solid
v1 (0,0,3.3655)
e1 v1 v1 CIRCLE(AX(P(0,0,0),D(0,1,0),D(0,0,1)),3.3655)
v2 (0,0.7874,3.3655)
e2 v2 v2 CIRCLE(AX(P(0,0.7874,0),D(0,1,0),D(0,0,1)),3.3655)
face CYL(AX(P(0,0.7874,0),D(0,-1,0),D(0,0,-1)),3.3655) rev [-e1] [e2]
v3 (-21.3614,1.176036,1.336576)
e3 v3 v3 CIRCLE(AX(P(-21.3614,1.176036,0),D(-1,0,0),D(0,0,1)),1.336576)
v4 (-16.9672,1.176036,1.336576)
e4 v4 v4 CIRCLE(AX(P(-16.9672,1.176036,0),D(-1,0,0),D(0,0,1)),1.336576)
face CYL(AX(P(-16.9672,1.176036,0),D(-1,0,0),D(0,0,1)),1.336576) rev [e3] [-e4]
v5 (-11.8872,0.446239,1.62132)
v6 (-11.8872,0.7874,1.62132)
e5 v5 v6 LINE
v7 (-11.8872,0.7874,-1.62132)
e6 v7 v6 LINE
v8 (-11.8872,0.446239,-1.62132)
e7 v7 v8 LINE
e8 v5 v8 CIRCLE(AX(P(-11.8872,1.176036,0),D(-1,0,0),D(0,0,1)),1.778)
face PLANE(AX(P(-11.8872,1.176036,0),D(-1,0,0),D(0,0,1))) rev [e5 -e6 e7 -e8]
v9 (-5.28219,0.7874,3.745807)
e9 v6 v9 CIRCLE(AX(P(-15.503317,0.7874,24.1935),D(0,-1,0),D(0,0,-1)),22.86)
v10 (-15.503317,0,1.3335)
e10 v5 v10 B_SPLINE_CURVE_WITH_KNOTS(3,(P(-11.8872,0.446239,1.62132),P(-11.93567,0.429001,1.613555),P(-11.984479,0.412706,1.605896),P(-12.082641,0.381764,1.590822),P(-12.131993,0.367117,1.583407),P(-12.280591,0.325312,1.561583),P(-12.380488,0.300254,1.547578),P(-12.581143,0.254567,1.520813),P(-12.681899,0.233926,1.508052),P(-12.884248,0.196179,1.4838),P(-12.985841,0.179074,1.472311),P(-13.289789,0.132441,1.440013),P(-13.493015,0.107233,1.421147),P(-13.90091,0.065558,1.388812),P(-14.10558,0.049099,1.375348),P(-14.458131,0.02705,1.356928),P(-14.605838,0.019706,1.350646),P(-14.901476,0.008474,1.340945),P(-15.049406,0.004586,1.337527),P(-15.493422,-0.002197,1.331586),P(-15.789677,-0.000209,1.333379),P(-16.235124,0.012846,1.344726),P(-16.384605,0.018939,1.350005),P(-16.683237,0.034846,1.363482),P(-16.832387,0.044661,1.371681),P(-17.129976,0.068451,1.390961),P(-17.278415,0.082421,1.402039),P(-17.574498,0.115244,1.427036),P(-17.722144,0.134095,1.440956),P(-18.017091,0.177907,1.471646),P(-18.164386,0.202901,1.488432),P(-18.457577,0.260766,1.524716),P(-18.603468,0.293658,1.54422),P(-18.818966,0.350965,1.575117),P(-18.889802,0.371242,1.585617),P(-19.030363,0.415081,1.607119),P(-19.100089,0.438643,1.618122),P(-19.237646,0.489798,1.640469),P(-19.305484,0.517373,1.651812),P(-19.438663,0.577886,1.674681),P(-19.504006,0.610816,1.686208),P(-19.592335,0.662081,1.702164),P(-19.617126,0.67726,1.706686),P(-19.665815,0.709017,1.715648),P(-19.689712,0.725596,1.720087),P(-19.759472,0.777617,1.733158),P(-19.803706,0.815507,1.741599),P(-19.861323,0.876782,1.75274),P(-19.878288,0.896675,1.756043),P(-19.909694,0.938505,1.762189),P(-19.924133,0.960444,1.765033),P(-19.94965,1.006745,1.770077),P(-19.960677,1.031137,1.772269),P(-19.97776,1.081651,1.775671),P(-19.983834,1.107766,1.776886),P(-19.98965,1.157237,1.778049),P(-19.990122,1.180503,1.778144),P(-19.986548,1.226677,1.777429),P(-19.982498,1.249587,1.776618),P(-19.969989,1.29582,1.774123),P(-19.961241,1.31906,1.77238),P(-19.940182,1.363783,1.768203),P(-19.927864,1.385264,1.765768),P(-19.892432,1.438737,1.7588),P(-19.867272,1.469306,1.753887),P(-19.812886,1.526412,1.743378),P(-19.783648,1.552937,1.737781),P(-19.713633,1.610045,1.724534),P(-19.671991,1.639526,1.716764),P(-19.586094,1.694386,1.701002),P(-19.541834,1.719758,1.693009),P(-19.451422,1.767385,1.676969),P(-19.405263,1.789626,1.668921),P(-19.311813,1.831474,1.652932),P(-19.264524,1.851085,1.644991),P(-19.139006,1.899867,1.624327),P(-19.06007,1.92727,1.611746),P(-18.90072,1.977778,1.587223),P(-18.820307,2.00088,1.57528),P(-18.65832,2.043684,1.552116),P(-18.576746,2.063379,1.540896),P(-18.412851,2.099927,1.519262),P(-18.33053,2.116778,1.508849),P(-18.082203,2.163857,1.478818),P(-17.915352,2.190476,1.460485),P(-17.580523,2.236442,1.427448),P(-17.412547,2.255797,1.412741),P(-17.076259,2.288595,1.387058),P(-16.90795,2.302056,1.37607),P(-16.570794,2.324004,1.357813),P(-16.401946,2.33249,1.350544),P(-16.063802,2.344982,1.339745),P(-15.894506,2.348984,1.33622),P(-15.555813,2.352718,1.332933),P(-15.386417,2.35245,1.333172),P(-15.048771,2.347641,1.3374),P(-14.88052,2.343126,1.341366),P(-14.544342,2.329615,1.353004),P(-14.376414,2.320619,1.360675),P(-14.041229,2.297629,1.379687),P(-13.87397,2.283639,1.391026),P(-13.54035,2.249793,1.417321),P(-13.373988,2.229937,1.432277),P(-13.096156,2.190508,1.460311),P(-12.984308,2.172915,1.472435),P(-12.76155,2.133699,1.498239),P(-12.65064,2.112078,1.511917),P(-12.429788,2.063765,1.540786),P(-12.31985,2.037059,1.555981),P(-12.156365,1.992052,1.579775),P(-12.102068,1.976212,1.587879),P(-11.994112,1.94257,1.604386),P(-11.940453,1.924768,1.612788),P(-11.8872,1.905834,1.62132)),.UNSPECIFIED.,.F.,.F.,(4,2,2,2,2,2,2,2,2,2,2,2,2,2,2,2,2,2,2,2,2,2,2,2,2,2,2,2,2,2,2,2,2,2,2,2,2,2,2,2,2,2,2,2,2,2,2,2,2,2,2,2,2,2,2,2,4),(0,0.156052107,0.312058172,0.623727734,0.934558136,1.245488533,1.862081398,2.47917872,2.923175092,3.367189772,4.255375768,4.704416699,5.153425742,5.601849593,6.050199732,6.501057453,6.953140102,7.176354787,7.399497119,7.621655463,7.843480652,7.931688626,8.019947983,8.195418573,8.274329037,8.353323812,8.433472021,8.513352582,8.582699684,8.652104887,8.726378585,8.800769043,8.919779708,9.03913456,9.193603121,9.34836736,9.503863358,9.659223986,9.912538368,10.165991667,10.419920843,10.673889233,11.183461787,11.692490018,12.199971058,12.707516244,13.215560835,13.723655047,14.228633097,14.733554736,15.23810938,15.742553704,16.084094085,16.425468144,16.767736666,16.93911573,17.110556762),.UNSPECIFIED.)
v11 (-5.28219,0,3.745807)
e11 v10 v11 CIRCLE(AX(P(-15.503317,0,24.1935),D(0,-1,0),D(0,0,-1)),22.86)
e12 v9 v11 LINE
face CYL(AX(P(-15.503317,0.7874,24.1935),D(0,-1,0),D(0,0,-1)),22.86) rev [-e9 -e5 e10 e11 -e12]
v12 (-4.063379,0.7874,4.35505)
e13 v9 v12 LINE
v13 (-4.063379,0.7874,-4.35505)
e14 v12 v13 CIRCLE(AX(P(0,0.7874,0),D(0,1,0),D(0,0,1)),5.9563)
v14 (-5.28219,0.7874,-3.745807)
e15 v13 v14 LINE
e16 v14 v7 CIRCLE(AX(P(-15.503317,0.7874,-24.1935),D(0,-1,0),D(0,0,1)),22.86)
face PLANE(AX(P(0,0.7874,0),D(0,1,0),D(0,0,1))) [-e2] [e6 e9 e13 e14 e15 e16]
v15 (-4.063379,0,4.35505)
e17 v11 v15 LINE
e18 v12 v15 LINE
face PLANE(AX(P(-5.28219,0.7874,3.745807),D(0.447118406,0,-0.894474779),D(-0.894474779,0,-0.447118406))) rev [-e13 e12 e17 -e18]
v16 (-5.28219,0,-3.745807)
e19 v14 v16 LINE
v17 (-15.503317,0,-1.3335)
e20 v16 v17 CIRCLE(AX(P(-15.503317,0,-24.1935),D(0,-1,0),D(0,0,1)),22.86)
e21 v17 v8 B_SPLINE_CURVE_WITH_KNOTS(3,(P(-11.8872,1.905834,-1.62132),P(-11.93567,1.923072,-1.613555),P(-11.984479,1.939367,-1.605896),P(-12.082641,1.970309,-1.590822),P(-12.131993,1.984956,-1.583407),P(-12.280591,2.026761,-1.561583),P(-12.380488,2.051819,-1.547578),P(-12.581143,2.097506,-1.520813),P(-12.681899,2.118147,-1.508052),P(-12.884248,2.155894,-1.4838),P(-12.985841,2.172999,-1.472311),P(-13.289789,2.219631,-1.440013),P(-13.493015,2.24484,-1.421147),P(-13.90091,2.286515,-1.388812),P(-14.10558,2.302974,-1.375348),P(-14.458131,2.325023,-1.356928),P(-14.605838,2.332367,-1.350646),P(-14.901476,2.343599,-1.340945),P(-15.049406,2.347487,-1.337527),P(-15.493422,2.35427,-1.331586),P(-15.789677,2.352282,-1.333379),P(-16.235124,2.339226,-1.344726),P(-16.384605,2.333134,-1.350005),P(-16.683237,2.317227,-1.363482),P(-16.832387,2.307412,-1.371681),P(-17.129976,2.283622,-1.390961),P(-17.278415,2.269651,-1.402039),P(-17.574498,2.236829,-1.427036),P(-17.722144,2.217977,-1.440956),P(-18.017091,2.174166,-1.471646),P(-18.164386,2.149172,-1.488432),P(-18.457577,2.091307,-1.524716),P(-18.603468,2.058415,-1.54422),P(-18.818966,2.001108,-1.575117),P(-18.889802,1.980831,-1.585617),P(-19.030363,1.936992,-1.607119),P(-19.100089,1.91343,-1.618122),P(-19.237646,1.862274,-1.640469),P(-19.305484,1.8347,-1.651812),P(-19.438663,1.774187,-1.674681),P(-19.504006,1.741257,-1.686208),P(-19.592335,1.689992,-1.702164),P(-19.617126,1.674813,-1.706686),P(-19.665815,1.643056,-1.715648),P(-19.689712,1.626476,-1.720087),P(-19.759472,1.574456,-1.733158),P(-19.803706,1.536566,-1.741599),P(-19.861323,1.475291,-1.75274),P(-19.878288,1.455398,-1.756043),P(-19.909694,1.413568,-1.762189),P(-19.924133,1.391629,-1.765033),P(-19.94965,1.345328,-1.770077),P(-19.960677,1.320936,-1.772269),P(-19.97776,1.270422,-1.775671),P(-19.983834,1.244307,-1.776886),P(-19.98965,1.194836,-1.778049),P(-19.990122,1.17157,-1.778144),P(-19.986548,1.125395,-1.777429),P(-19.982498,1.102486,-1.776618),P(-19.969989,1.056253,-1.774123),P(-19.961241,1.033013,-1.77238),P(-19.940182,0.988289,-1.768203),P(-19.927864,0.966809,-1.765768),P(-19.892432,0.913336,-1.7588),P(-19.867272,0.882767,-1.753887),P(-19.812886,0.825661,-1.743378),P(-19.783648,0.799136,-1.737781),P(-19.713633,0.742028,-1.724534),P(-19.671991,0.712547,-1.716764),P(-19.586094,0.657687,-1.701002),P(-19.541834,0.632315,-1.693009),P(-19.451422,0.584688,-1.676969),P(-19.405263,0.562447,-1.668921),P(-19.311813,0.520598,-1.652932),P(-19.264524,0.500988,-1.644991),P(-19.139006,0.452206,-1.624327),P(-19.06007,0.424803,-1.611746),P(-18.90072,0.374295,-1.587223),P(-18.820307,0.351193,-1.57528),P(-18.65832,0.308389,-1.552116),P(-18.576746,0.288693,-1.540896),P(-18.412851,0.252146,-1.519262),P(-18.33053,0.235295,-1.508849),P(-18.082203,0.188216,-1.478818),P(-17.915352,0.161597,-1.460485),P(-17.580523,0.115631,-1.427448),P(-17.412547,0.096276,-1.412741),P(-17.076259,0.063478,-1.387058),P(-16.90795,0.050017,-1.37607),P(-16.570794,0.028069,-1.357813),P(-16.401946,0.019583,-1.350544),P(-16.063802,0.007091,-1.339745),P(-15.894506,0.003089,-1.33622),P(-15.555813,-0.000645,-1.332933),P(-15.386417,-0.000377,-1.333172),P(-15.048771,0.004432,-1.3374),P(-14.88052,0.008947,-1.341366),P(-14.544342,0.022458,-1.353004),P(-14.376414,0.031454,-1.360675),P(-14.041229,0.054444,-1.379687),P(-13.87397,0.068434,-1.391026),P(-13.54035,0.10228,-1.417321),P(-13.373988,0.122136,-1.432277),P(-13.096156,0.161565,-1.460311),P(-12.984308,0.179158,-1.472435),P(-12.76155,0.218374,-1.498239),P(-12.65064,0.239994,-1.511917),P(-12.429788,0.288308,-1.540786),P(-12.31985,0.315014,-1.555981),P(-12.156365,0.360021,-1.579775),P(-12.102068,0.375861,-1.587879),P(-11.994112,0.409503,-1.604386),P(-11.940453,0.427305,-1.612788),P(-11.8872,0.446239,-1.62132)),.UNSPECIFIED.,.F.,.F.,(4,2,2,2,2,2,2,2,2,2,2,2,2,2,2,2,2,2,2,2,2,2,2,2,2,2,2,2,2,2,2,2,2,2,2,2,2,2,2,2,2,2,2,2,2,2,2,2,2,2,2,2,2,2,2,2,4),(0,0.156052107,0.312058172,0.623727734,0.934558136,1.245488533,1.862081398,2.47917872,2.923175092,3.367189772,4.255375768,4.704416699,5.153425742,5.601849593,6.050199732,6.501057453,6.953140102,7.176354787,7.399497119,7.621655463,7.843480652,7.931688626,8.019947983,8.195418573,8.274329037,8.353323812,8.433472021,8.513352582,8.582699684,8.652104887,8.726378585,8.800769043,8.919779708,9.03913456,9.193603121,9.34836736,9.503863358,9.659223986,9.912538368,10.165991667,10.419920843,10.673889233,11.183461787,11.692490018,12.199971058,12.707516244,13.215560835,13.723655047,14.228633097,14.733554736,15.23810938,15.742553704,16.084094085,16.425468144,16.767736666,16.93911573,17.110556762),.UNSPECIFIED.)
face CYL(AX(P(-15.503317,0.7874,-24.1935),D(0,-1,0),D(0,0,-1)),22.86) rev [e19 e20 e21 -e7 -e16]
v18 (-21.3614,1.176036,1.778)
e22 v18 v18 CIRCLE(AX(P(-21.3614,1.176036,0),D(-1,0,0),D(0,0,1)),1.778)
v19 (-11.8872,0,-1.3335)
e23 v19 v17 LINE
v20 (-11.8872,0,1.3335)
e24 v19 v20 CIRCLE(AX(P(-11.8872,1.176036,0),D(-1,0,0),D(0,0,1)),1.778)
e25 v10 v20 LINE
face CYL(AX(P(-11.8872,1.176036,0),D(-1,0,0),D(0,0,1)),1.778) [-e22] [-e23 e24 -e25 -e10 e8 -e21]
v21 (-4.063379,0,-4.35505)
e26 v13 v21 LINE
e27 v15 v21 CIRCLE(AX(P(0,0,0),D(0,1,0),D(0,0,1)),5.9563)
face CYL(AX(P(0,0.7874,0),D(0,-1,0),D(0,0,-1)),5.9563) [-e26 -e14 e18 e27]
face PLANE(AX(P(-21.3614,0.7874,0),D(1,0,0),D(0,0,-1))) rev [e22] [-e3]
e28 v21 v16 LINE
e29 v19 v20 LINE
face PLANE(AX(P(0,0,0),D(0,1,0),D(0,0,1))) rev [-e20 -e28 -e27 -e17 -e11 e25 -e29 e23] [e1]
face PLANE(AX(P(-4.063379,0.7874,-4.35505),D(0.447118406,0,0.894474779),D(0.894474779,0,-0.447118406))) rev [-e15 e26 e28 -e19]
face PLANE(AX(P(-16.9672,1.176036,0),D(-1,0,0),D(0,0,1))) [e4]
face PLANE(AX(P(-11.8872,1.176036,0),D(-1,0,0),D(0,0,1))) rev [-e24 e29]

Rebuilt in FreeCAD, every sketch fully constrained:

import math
import FreeCAD as App
import Part
import Sketcher

V = App.Vector
Q = App.Units.Quantity

doc = App.newDocument("Part")
body = doc.addObject("PartDesign::Body", "Body")

sketch1 = doc.addObject("Sketcher::SketchObject", "Sketch")
body.addObject(sketch1)
sketch1.AttachmentSupport = (doc.XZ_Plane, [""])
sketch1.MapMode = "FlatFace"
sketch1.addGeometry(Part.LineSegment(V(-15.5, -1.3, 0), V(-21.4, -1.3, 0)), False)
sketch1.addGeometry(Part.LineSegment(V(-21.4, -1.3, 0), V(-21.4, 1.3, 0)), False)
sketch1.addGeometry(Part.LineSegment(V(-21.4, 1.3, 0), V(-15.5, 1.3, 0)), False)
sketch1.addGeometry(Part.ArcOfCircle(Part.Circle(V(-15.5, 24.2, 0), V(0, 0, 1), 22.9), math.radians(-90), math.radians(-63)), False)
sketch1.addGeometry(Part.LineSegment(V(-5.3, 3.7, 0), V(-4.1, 4.4, 0)), False)
sketch1.addGeometry(Part.ArcOfCircle(Part.Circle(V(0, 0, 0), V(0, 0, 1), 6), math.radians(-133), math.radians(133)), False)
sketch1.addGeometry(Part.LineSegment(V(-4.1, -4.4, 0), V(-5.3, -3.7, 0)), False)
sketch1.addGeometry(Part.ArcOfCircle(Part.Circle(V(-15.5, -24.2, 0), V(0, 0, 1), 22.9), math.radians(63), math.radians(90)), False)
sketch1.addGeometry(Part.Circle(V(0, 0, 0), V(0, 0, 1), 3.4), False)
sketch1.addConstraint(Sketcher.Constraint("Coincident", 0, 2, 1, 1))
sketch1.addConstraint(Sketcher.Constraint("Coincident", 1, 2, 2, 1))
sketch1.addConstraint(Sketcher.Constraint("Tangent", 2, 2, 3, 1))
sketch1.addConstraint(Sketcher.Constraint("Tangent", 3, 2, 4, 1))
sketch1.addConstraint(Sketcher.Constraint("Coincident", 4, 2, 5, 2))
sketch1.addConstraint(Sketcher.Constraint("Coincident", 5, 1, 6, 1))
sketch1.addConstraint(Sketcher.Constraint("Tangent", 6, 2, 7, 1))
sketch1.addConstraint(Sketcher.Constraint("Tangent", 7, 2, 0, 1))
sketch1.addConstraint(Sketcher.Constraint("Horizontal", 0))
sketch1.addConstraint(Sketcher.Constraint("Vertical", 1))
sketch1.addConstraint(Sketcher.Constraint("Horizontal", 2))
sketch1.addConstraint(Sketcher.Constraint("Coincident", 5, 3, -1, 1))
sketch1.addConstraint(Sketcher.Constraint("Coincident", 8, 3, -1, 1))
sketch1.addConstraint(Sketcher.Constraint("Equal", 3, 7))
sketch1.addConstraint(Sketcher.Constraint("Symmetric", 3, 3, 7, 3, -1))
sketch1.addConstraint(Sketcher.Constraint("Vertical", 4, 2, 5, 1))
sketch1.addConstraint(Sketcher.Constraint("Radius", 3, Q("0.9 in")))
sketch1.addConstraint(Sketcher.Constraint("Diameter", 8, Q("0.265 in")))
sketch1.addConstraint(Sketcher.Constraint("Radius", 5, Q("0.2345 in")))
sketch1.addConstraint(Sketcher.Constraint("DistanceY", 1, 1, 1, 2, Q("0.105 in")))
sketch1.addConstraint(Sketcher.Constraint("DistanceX", 0, 2, -1, 1, Q("0.841 in")))
sketch1.addConstraint(Sketcher.Constraint("Distance", 4, Q("1.3626 mm")))
sketch1.addConstraint(Sketcher.Constraint("DistanceY", 5, 1, 4, 2, Q("8.7101 mm")))
pad1 = doc.addObject("PartDesign::Pad", "Pad")
body.addObject(pad1)
pad1.Profile = sketch1
pad1.Length = Q("0.031 in")
pad1.Reversed = True

sketch2 = doc.addObject("Sketcher::SketchObject", "Sketch001")
body.addObject(sketch2)
sketch2.AttachmentSupport = (doc.YZ_Plane, [""])
sketch2.MapMode = "FlatFace"
sketch2.AttachmentOffset = App.Placement(V(0, 0, -0.841 * 25.4), App.Rotation())
sketch2.addGeometry(Part.Circle(V(1.2, 0, 0), V(0, 0, 1), 1.8), False)
sketch2.addConstraint(Sketcher.Constraint("PointOnObject", 0, 3, -1))
sketch2.addConstraint(Sketcher.Constraint("Diameter", 0, Q("0.14 in")))
sketch2.addConstraint(Sketcher.Constraint("DistanceX", -1, 1, 0, 3, Q("1.176036 mm")))
pad2 = doc.addObject("PartDesign::Pad", "Pad001")
body.addObject(pad2)
pad2.Profile = sketch2
pad2.Length = Q("0.373 in")

sketch3 = doc.addObject("Sketcher::SketchObject", "Sketch002")
body.addObject(sketch3)
sketch3.AttachmentSupport = (doc.YZ_Plane, [""])
sketch3.MapMode = "FlatFace"
sketch3.AttachmentOffset = App.Placement(V(0, 0, -0.841 * 25.4), App.Rotation())
sketch3.addGeometry(Part.Circle(V(1.2, 0, 0), V(0, 0, 1), 1.3), False)
sketch3.addConstraint(Sketcher.Constraint("PointOnObject", 0, 3, -1))
sketch3.addConstraint(Sketcher.Constraint("Diameter", 0, Q("2.673153 mm")))
sketch3.addConstraint(Sketcher.Constraint("DistanceX", -1, 1, 0, 3, Q("1.176036 mm")))
pocket1 = doc.addObject("PartDesign::Pocket", "Pocket")
body.addObject(pocket1)
pocket1.Profile = sketch3
pocket1.Length = Q("0.173 in")
pocket1.Reversed = True

doc.recompute()
